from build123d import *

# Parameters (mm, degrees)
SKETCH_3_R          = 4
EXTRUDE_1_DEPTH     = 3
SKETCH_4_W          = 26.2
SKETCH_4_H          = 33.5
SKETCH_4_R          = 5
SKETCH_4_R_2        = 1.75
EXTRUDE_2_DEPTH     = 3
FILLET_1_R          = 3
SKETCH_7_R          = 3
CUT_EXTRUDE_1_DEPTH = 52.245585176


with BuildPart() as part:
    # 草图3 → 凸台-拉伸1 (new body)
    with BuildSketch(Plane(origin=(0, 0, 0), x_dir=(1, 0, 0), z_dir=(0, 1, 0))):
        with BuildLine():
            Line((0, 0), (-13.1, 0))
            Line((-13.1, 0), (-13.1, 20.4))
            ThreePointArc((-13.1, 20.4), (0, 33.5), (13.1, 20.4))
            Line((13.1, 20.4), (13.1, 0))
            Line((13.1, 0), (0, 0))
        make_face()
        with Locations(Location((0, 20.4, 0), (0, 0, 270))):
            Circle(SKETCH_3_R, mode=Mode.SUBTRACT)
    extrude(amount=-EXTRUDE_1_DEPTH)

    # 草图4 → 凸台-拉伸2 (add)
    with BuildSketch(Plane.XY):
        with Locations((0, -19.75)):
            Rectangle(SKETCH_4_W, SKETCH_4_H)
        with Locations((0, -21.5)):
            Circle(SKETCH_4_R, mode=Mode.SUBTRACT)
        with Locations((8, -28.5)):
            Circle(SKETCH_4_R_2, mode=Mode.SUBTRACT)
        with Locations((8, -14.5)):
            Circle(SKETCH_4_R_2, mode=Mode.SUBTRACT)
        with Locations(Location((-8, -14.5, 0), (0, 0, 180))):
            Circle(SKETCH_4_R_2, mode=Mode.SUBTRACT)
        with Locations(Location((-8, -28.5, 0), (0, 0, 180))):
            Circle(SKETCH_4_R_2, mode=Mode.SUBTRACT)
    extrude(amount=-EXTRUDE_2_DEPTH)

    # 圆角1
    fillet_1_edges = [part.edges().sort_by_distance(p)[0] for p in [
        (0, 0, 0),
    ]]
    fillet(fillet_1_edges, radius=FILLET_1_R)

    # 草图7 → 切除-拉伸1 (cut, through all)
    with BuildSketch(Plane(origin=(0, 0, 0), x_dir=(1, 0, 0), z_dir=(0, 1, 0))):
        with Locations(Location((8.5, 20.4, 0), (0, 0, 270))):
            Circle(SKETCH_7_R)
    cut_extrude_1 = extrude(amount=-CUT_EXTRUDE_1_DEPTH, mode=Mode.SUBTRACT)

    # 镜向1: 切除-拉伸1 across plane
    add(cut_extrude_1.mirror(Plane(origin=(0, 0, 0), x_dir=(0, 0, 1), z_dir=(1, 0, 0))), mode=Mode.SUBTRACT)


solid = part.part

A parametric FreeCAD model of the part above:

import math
import FreeCAD as App
import Part
import Sketcher
from FreeCAD import Vector
Q = App.Units.Quantity


def edges_at(feature, points):
    """Names of the edges that pass closest to the given points."""
    edges = feature.Shape.Edges
    near = lambda p: min(range(len(edges)), key=lambda i: edges[i].distToShape(Part.Vertex(*p))[0])
    return sorted({f"Edge{near(p) + 1}" for p in points})

doc = App.newDocument("Part")
params = doc.addObject("Spreadsheet::Sheet", "Params")
for row, (alias, value) in enumerate([
    ("sketch1_diameter", "8 mm"),
    ("sketch1_radius", "13.1 mm"),
    ("sketch1_height", "20.4 mm"),
    ("pad1_length", "3 mm"),
    ("sketch2_diameter", "10 mm"),
    ("sketch2_diameter2", "3.5 mm"),
    ("sketch2_width", "26.2 mm"),
    ("sketch2_height", "33.5 mm"),
    ("pad2_length", "3 mm"),
    ("fillet_radius", "3 mm"),
    ("sketch3_diameter", "6 mm"),
], start=1):
    params.set(f"A{row}", alias)
    params.set(f"B{row}", "=" + value)
    params.setAlias(f"B{row}", alias)

body = doc.addObject("PartDesign::Body", "Body")

# Sketch on XZ plane
sketch1 = body.newObject("Sketcher::SketchObject", "Sketch")
sketch1.AttachmentSupport = (doc.getObject("XZ_Plane"), [""])
sketch1.MapMode = "FlatFace"
sketch1.addGeometry(Part.LineSegment(Vector(-13.1, -20.4, 0), Vector(-13.1, 0, 0)), False)
sketch1.addGeometry(Part.LineSegment(Vector(-13.1, 0, 0), Vector(13.1, 0, 0)), False)
sketch1.addGeometry(Part.LineSegment(Vector(13.1, 0, 0), Vector(13.1, -20.4, 0)), False)
sketch1.addGeometry(Part.ArcOfCircle(Part.Circle(Vector(0, -20.4, 0), Vector(0, 0, 1), 13.1), math.radians(180), math.radians(360)), False)
sketch1.addGeometry(Part.Circle(Vector(0, -20.4, 0), Vector(0, 0, 1), 4), False)
sketch1.addConstraint(Sketcher.Constraint("Coincident", 0, 2, 1, 1))
sketch1.addConstraint(Sketcher.Constraint("Coincident", 1, 2, 2, 1))
sketch1.addConstraint(Sketcher.Constraint("Tangent", 2, 2, 3, 2))
sketch1.addConstraint(Sketcher.Constraint("Tangent", 3, 1, 0, 1))
sketch1.addConstraint(Sketcher.Constraint("Vertical", 0))
sketch1.addConstraint(Sketcher.Constraint("Horizontal", 1))
sketch1.addConstraint(Sketcher.Constraint("Vertical", 2))
sketch1.addConstraint(Sketcher.Constraint("Coincident", 4, 3, 3, 3))
sketch1.addConstraint(Sketcher.Constraint("Symmetric", 0, 2, 1, 2, -1, 1))
sketch1.addConstraint(Sketcher.Constraint("Diameter", 4, Q("8 mm")))
sketch1.addConstraint(Sketcher.Constraint("Radius", 3, Q("13.1 mm")))
sketch1.addConstraint(Sketcher.Constraint("DistanceY", 0, 1, 0, 2, Q("20.4 mm")))
sketch1.setExpression("Constraints[9]", "Params.sketch1_diameter")
sketch1.setExpression("Constraints[10]", "Params.sketch1_radius")
sketch1.setExpression("Constraints[11]", "Params.sketch1_height")
pad1 = body.newObject("PartDesign::Pad", "Pad")
pad1.Profile = sketch1
pad1.setExpression("Length", "Params.pad1_length")

# Sketch on XY plane
sketch2 = body.newObject("Sketcher::SketchObject", "Sketch001")
sketch2.AttachmentSupport = (doc.getObject("XY_Plane"), [""])
sketch2.MapMode = "FlatFace"
sketch2.addGeometry(Part.LineSegment(Vector(-13.1, -3, 0), Vector(-13.1, -36.5, 0)), False)
sketch2.addGeometry(Part.LineSegment(Vector(-13.1, -36.5, 0), Vector(13.1, -36.5, 0)), False)
sketch2.addGeometry(Part.LineSegment(Vector(13.1, -36.5, 0), Vector(13.1, -3, 0)), False)
sketch2.addGeometry(Part.LineSegment(Vector(13.1, -3, 0), Vector(-13.1, -3, 0)), False)
sketch2.addGeometry(Part.Circle(Vector(-8, -28.5, 0), Vector(0, 0, 1), 1.8), False)
sketch2.addGeometry(Part.Circle(Vector(8, -28.5, 0), Vector(0, 0, 1), 1.8), False)
sketch2.addGeometry(Part.Circle(Vector(-8, -14.5, 0), Vector(0, 0, 1), 1.8), False)
sketch2.addGeometry(Part.Circle(Vector(0, -21.5, 0), Vector(0, 0, 1), 5), False)
sketch2.addGeometry(Part.Circle(Vector(8, -14.5, 0), Vector(0, 0, 1), 1.8), False)
sketch2.addConstraint(Sketcher.Constraint("Coincident", 0, 2, 1, 1))
sketch2.addConstraint(Sketcher.Constraint("Coincident", 1, 2, 2, 1))
sketch2.addConstraint(Sketcher.Constraint("Coincident", 2, 2, 3, 1))
sketch2.addConstraint(Sketcher.Constraint("Coincident", 3, 2, 0, 1))
sketch2.addConstraint(Sketcher.Constraint("Vertical", 0))
sketch2.addConstraint(Sketcher.Constraint("Horizontal", 1))
sketch2.addConstraint(Sketcher.Constraint("Vertical", 2))
sketch2.addConstraint(Sketcher.Constraint("Horizontal", 3))
sketch2.addConstraint(Sketcher.Constraint("Equal", 4, 5))
sketch2.addConstraint(Sketcher.Constraint("Equal", 5, 6))
sketch2.addConstraint(Sketcher.Constraint("Equal", 6, 8))
sketch2.addConstraint(Sketcher.Constraint("Symmetric", 4, 3, 5, 3, -2))
sketch2.addConstraint(Sketcher.Constraint("Symmetric", 6, 3, 8, 3, -2))
sketch2.addConstraint(Sketcher.Constraint("PointOnObject", 7, 3, -2))
sketch2.addConstraint(Sketcher.Constraint("Vertical", 4, 3, 6, 3))
sketch2.addConstraint(Sketcher.Constraint("Diameter", 7, Q("10 mm")))
sketch2.addConstraint(Sketcher.Constraint("Diameter", 4, Q("3.5 mm")))
sketch2.addConstraint(Sketcher.Constraint("DistanceX", 1, 1, 1, 2, Q("26.2 mm")))
sketch2.addConstraint(Sketcher.Constraint("DistanceY", 0, 2, 0, 1, Q("33.5 mm")))
sketch2.addConstraint(Sketcher.Constraint("DistanceX", 4, 3, -1, 1, Q("8 mm")))
sketch2.addConstraint(Sketcher.Constraint("DistanceY", 2, 2, -1, 1, Q("3 mm")))
sketch2.addConstraint(Sketcher.Constraint("DistanceY", 4, 3, 6, 3, Q("14 mm")))
sketch2.addConstraint(Sketcher.Constraint("DistanceY", 4, 3, 7, 3, Q("7 mm")))
sketch2.addConstraint(Sketcher.Constraint("DistanceY", 0, 2, 4, 3, Q("8 mm")))
sketch2.addConstraint(Sketcher.Constraint("DistanceX", 0, 2, -1, 1, Q("13.1 mm")))
sketch2.setExpression("Constraints[15]", "Params.sketch2_diameter")
sketch2.setExpression("Constraints[16]", "Params.sketch2_diameter2")
sketch2.setExpression("Constraints[17]", "Params.sketch2_width")
sketch2.setExpression("Constraints[18]", "Params.sketch2_height")
pad2 = body.newObject("PartDesign::Pad", "Pad001")
pad2.Profile = sketch2
pad2.setExpression("Length", "Params.pad2_length")
pad2.Reversed = True
doc.recompute()

fillet = body.newObject("PartDesign::Fillet", "Fillet")
fillet.Base = (pad2, edges_at(pad2, [(0, 0, 0)]))
fillet.setExpression("Radius", "Params.fillet_radius")

# Sketch on XZ plane
sketch3 = body.newObject("Sketcher::SketchObject", "Sketch002")
sketch3.AttachmentSupport = (doc.getObject("XZ_Plane"), [""])
sketch3.MapMode = "FlatFace"
sketch3.addGeometry(Part.Circle(Vector(8.5, -20.4, 0), Vector(0, 0, 1), 3), False)
sketch3.addConstraint(Sketcher.Constraint("Diameter", 0, Q("6 mm")))
sketch3.addConstraint(Sketcher.Constraint("DistanceX", -1, 1, 0, 3, Q("8.5 mm")))
sketch3.addConstraint(Sketcher.Constraint("DistanceY", 0, 3, -1, 1, Q("20.4 mm")))
sketch3.setExpression("Constraints[0]", "Params.sketch3_diameter")
pocket1 = body.newObject("PartDesign::Pocket", "Pocket")
pocket1.Profile = sketch3
pocket1.Type = "ThroughAll"
pocket1.Reversed = True
doc.recompute()

mirrored = body.newObject("PartDesign::Mirrored", "Mirrored")
mirrored.Originals = [pocket1]
mirrored.MirrorPlane = (doc.getObject("YZ_Plane"), [""])
body.Tip = mirrored

doc.recompute()
